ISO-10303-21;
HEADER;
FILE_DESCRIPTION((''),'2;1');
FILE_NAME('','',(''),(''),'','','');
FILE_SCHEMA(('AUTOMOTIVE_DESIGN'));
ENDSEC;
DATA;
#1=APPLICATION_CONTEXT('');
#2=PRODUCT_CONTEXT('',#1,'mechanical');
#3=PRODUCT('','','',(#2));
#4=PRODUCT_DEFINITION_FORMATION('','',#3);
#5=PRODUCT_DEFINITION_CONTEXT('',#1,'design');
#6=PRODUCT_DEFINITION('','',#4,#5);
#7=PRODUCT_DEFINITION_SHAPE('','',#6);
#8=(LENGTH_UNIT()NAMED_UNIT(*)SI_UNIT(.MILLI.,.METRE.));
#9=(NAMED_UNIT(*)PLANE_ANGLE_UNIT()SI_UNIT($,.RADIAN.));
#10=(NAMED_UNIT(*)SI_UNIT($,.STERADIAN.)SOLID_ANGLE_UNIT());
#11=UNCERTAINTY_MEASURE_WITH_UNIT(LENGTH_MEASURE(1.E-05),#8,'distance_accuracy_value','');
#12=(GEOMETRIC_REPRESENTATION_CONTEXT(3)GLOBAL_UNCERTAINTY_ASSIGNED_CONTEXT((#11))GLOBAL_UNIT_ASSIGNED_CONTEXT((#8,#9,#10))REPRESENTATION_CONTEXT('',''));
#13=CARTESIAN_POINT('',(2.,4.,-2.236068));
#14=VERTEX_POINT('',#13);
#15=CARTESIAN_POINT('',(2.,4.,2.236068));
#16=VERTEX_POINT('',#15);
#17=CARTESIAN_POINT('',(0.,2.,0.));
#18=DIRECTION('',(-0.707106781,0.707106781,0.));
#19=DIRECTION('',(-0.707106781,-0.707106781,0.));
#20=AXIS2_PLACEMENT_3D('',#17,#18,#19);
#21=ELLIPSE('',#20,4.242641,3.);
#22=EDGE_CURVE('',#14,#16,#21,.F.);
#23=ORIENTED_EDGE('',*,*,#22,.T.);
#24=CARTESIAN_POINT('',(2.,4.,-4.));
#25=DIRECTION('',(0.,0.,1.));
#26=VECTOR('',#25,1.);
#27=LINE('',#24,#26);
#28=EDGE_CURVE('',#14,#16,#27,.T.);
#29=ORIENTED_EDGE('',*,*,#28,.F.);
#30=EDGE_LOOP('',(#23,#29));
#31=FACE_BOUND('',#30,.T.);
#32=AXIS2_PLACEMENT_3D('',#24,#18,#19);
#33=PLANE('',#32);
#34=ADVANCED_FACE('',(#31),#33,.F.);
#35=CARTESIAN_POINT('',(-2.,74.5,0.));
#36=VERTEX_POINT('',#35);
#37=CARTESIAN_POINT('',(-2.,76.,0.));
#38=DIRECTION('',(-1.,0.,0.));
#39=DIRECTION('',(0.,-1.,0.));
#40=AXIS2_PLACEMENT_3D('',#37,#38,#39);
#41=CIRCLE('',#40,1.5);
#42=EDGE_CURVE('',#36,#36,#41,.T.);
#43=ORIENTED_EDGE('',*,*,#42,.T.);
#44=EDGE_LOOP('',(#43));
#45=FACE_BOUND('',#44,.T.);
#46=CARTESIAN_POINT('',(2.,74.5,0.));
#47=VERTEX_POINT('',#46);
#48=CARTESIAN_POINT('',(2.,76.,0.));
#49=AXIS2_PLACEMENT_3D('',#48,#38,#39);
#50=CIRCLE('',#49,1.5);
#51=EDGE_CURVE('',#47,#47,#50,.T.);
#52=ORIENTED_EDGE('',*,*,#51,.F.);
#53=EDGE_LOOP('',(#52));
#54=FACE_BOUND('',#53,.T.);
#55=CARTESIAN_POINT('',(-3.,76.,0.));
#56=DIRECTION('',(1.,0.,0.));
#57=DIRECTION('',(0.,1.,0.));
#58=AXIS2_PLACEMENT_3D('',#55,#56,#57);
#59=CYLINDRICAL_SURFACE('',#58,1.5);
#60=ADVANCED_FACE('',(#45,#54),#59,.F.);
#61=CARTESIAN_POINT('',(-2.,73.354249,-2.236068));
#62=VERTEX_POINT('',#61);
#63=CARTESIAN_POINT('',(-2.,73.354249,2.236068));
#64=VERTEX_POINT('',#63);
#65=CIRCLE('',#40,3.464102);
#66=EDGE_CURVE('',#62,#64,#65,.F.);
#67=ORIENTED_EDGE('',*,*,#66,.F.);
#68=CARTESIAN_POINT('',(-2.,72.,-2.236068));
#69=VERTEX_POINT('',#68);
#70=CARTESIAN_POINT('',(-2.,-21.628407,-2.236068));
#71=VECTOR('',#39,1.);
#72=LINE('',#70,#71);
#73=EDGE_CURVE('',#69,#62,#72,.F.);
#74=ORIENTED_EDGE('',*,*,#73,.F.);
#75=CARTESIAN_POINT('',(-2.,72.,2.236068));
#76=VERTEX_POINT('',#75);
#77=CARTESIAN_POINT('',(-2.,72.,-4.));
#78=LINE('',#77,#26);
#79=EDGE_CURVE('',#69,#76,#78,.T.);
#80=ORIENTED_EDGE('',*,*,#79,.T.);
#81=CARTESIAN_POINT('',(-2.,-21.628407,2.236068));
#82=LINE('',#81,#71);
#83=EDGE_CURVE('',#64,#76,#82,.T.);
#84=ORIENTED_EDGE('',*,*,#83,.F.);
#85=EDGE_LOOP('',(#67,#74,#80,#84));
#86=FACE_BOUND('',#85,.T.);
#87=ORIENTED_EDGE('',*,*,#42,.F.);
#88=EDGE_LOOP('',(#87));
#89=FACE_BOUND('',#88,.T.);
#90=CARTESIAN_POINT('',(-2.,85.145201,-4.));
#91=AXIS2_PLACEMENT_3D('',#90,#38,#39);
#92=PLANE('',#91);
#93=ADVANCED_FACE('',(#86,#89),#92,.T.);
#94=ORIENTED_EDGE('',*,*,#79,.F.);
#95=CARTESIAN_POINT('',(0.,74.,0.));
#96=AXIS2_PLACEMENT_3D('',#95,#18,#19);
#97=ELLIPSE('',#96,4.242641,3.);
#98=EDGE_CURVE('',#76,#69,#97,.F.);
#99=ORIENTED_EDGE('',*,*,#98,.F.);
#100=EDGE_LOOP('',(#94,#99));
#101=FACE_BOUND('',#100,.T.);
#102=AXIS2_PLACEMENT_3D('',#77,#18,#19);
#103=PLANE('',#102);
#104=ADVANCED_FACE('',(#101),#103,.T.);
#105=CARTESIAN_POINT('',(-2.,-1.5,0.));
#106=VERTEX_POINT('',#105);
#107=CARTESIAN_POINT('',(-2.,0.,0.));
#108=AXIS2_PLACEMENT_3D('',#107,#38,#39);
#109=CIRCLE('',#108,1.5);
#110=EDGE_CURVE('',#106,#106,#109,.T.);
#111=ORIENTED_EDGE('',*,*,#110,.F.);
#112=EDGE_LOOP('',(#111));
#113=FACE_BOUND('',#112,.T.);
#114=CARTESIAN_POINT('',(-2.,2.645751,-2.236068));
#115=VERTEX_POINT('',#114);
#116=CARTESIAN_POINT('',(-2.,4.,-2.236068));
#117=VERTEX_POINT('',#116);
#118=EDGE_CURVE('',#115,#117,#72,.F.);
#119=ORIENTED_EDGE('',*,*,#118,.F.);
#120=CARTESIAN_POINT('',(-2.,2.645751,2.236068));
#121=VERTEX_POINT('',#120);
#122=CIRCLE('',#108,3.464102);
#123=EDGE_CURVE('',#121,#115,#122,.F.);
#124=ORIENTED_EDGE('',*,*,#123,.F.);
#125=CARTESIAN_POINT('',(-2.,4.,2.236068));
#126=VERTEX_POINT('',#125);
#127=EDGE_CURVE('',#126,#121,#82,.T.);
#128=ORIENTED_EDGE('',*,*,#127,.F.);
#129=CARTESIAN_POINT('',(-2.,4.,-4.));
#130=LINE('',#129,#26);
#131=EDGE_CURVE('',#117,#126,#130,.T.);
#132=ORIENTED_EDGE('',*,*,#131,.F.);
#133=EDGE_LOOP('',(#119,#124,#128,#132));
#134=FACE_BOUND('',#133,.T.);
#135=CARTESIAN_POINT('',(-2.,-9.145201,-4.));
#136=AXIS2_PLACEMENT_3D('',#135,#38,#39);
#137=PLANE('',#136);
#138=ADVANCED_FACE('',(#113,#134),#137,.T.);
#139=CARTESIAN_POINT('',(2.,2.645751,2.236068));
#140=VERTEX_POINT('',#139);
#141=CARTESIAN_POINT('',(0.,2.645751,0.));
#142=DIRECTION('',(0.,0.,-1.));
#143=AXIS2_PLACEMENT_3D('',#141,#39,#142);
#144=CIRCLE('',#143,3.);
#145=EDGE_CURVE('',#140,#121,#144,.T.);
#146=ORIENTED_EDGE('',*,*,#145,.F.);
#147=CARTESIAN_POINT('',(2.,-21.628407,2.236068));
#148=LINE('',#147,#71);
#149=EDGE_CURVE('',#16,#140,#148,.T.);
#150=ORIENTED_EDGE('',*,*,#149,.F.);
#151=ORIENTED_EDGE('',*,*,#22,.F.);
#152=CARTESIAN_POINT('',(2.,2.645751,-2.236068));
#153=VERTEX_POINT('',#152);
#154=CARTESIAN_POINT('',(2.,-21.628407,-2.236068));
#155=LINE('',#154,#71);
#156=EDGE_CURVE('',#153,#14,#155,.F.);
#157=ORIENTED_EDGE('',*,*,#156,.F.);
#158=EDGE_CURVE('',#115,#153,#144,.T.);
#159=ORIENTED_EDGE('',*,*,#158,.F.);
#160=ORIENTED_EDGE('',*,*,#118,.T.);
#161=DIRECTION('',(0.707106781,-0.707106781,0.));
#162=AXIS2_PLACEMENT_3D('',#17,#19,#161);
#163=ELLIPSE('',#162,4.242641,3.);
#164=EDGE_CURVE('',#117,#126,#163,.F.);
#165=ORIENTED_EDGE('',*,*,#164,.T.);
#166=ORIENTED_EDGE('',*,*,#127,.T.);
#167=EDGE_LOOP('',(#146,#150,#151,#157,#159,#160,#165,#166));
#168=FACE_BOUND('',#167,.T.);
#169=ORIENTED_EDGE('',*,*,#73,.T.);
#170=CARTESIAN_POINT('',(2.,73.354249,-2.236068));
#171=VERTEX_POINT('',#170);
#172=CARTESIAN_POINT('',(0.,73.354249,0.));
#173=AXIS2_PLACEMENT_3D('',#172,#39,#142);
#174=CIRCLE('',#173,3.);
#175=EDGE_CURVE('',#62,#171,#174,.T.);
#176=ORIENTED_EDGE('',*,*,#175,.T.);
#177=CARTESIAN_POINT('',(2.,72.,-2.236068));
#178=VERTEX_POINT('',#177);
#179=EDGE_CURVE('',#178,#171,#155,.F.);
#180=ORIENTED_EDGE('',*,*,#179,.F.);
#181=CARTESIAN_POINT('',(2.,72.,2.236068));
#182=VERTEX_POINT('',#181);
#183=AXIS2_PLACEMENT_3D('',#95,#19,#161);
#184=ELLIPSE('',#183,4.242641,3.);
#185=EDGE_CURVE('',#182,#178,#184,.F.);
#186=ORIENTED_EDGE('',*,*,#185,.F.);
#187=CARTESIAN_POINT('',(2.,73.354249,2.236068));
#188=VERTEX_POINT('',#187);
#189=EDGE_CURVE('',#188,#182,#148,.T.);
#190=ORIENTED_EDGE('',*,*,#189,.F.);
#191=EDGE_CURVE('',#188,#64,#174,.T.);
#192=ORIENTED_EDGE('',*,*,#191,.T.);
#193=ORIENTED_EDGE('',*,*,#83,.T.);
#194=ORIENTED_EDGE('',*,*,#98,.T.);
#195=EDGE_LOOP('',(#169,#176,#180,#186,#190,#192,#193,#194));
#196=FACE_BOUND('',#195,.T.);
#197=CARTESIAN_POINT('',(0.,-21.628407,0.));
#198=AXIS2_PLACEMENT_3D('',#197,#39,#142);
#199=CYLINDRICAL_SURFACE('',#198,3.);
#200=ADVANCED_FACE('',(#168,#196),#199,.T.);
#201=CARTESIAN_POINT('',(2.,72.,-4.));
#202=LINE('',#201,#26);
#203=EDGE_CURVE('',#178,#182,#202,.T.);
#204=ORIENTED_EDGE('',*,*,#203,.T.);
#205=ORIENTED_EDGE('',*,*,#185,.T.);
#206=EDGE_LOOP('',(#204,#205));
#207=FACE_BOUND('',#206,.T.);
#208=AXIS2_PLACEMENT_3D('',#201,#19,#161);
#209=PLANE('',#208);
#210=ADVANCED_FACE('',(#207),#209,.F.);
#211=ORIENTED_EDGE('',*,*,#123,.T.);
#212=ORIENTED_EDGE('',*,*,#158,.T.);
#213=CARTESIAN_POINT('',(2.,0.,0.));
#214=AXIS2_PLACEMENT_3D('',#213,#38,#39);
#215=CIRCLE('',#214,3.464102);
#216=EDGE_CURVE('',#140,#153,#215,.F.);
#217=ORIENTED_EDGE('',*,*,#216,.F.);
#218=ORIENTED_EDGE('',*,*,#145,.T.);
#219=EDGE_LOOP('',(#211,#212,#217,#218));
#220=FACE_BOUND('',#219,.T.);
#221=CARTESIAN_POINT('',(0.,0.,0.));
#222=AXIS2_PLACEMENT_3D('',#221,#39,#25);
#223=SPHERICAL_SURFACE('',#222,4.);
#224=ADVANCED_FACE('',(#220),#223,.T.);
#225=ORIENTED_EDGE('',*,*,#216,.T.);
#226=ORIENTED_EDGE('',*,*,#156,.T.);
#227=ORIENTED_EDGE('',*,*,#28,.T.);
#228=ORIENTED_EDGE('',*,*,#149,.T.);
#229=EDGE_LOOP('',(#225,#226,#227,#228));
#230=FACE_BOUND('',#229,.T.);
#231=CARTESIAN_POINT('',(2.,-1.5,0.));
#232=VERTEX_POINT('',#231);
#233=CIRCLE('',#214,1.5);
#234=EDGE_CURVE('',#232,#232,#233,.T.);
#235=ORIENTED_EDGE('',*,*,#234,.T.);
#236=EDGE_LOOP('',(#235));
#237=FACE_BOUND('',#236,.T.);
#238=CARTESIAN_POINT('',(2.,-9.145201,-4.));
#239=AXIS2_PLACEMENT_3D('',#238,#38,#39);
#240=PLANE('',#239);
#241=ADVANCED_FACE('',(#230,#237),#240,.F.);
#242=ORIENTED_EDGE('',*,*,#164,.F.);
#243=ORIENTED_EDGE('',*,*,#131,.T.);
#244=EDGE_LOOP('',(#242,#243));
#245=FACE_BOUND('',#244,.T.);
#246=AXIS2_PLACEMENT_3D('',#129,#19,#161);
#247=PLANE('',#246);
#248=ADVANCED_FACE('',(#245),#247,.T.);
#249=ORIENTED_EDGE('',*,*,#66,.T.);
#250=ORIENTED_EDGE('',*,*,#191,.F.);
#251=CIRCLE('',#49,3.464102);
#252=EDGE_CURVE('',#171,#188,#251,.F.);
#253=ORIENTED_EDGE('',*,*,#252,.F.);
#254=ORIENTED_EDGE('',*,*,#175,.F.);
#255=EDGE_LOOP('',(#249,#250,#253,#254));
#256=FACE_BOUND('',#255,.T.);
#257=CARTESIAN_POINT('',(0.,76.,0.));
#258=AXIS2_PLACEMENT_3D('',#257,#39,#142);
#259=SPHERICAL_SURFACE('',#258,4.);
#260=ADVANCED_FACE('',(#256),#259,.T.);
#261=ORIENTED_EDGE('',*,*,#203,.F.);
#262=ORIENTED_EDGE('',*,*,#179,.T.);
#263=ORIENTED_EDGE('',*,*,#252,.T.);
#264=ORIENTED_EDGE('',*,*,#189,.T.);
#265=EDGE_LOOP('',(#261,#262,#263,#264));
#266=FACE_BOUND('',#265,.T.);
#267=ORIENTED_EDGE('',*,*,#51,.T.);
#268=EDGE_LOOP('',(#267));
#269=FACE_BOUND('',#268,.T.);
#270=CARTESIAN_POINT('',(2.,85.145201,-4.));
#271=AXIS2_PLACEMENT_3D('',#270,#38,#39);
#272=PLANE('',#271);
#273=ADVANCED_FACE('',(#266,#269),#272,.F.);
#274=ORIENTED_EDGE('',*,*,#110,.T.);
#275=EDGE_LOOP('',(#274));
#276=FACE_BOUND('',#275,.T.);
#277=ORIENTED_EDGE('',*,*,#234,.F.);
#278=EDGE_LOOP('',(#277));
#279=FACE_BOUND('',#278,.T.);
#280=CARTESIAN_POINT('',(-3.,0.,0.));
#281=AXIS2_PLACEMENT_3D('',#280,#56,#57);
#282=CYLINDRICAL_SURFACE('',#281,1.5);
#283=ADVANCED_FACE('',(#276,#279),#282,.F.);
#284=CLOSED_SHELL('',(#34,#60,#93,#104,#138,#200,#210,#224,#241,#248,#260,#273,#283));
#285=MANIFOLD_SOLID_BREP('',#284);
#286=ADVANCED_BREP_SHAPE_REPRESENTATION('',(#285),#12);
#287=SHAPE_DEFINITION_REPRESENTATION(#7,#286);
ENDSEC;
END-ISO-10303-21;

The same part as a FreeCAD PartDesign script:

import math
import FreeCAD as App
import Part
import Sketcher

V = App.Vector

doc = App.newDocument("Part")
body = doc.addObject("PartDesign::Body", "Body")

# Sketch on YZ plane
sketch1 = body.newObject("Sketcher::SketchObject", "Sketch")
sketch1.AttachmentSupport = (doc.getObject("YZ_Plane"), [""])
sketch1.MapMode = "FlatFace"
sketch1.addGeometry([
    Part.LineSegment(V(80, 0, 0), V(-4, 0, 0)),
    Part.ArcOfCircle(Part.Circle(V(0, 0, 0), V(0, 0, 1), 4), math.radians(180), math.radians(311)),
    Part.LineSegment(V(2.6, -3, 0), V(73.4, -3, 0)),
    Part.ArcOfCircle(Part.Circle(V(76, 0, 0), V(0, 0, 1), 4), math.radians(-131), math.radians(0)),
], False)
sketch1.addConstraint([
    Sketcher.Constraint("Coincident", 0, 2, 1, 1),
    Sketcher.Constraint("Coincident", 1, 2, 2, 1),
    Sketcher.Constraint("Coincident", 2, 2, 3, 1),
    Sketcher.Constraint("Coincident", 3, 2, 0, 1),
    Sketcher.Constraint("Horizontal", 0),
    Sketcher.Constraint("Horizontal", 2),
    Sketcher.Constraint("Coincident", 1, 3, -1, 1),
    Sketcher.Constraint("Equal", 1, 3),
    Sketcher.Constraint("PointOnObject", 3, 3, -1),
    Sketcher.Constraint("PointOnObject", 0, 2, -1),
    Sketcher.Constraint("Radius", 1, 4.0),
    Sketcher.Constraint("DistanceX", 0, 2, 0, 1, 84.0),
    Sketcher.Constraint("DistanceY", 1, 2, -1, 1, 3.0),
])
revolution = body.newObject("PartDesign::Revolution", "Revolution")
revolution.Profile = sketch1
revolution.ReferenceAxis = (sketch1, ["H_Axis"])
revolution.Angle = 360

# Sketch on XY plane
sketch2 = body.newObject("Sketcher::SketchObject", "Sketch001")
sketch2.AttachmentSupport = (doc.getObject("XY_Plane"), [""])
sketch2.MapMode = "FlatFace"
sketch2.addGeometry([
    Part.LineSegment(V(2, 85.1, 0), V(2, 72, 0)),  # 0
    Part.LineSegment(V(2, 72, 0), V(3, 71, 0)),  # 1
    Part.LineSegment(V(3, 71, 0), V(8.1, 71, 0)),  # 2
    Part.LineSegment(V(8.1, 71, 0), V(8.1, 85.1, 0)),  # 3
    Part.LineSegment(V(8.1, 85.1, 0), V(2, 85.1, 0)),  # 4
    Part.LineSegment(V(2, -9.1, 0), V(8.1, -9.1, 0)),  # 5
    Part.LineSegment(V(8.1, -9.1, 0), V(8.1, 5, 0)),  # 6
    Part.LineSegment(V(8.1, 5, 0), V(3, 5, 0)),  # 7
    Part.LineSegment(V(3, 5, 0), V(2, 4, 0)),  # 8
    Part.LineSegment(V(2, 4, 0), V(2, -9.1, 0)),  # 9
], False)
sketch2.addConstraint([
    Sketcher.Constraint("Coincident", 0, 2, 1, 1),
    Sketcher.Constraint("Coincident", 1, 2, 2, 1),
    Sketcher.Constraint("Coincident", 2, 2, 3, 1),
    Sketcher.Constraint("Coincident", 3, 2, 4, 1),
    Sketcher.Constraint("Coincident", 4, 2, 0, 1),
    Sketcher.Constraint("Coincident", 5, 2, 6, 1),
    Sketcher.Constraint("Coincident", 6, 2, 7, 1),
    Sketcher.Constraint("Coincident", 7, 2, 8, 1),
    Sketcher.Constraint("Coincident", 8, 2, 9, 1),
    Sketcher.Constraint("Coincident", 9, 2, 5, 1),
    Sketcher.Constraint("Vertical", 0),
    Sketcher.Constraint("Horizontal", 2),
    Sketcher.Constraint("Vertical", 3),
    Sketcher.Constraint("Horizontal", 4),
    Sketcher.Constraint("Horizontal", 5),
    Sketcher.Constraint("Vertical", 6),
    Sketcher.Constraint("Horizontal", 7),
    Sketcher.Constraint("Vertical", 9),
    Sketcher.Constraint("Perpendicular", 1, 8),
    Sketcher.Constraint("Vertical", 3, 2, 5, 2),
    Sketcher.Constraint("Vertical", 1, 2, 7, 2),
    Sketcher.Constraint("Vertical", 4, 2, 8, 2),
    Sketcher.Constraint("Equal", 3, 6),
    Sketcher.Constraint("Equal", 0, 9),
    Sketcher.Constraint("DistanceX", -1, 1, 0, 2, 2.0),
    Sketcher.Constraint("DistanceY", -1, 1, 0, 2, 72.0),
    Sketcher.Constraint("DistanceX", -1, 1, 1, 2, 3.0),
    Sketcher.Constraint("DistanceY", -1, 1, 6, 2, 5.0),
    Sketcher.Constraint("DistanceY", 0, 2, 0, 1, 13.145201),
    Sketcher.Constraint("DistanceX", 2, 1, 2, 2, 5.111542),
])
pocket1 = body.newObject("PartDesign::Pocket", "Pocket")
pocket1.Profile = sketch2
pocket1.Length = 162.399501
pocket1.Midplane = True
doc.recompute()

mirrored = body.newObject("PartDesign::Mirrored", "Mirrored")
mirrored.Originals = [pocket1]
mirrored.MirrorPlane = (doc.getObject("YZ_Plane"), [""])
body.Tip = mirrored

# Sketch on YZ plane
sketch3 = body.newObject("Sketcher::SketchObject", "Sketch002")
sketch3.AttachmentSupport = (doc.getObject("YZ_Plane"), [""])
sketch3.MapMode = "FlatFace"
sketch3.AttachmentOffset = App.Placement(V(0, 0, 2), App.Rotation())
sketch3.addGeometry(Part.Circle(V(76, 0, 0), V(0, 0, 1), 1.5), False)
sketch3.addConstraint([
    Sketcher.Constraint("PointOnObject", 0, 3, -1),
    Sketcher.Constraint("Diameter", 0, 3.0),
    Sketcher.Constraint("DistanceX", -1, 1, 0, 3, 76.0),
])
pocket2 = body.newObject("PartDesign::Pocket", "Pocket001")
pocket2.Profile = sketch3
pocket2.Type = "ThroughAll"
pocket2.Midplane = True

# Sketch on YZ plane
sketch4 = body.newObject("Sketcher::SketchObject", "Sketch003")
sketch4.AttachmentSupport = (doc.getObject("YZ_Plane"), [""])
sketch4.MapMode = "FlatFace"
sketch4.AttachmentOffset = App.Placement(V(0, 0, 2), App.Rotation())
sketch4.addGeometry(Part.Circle(V(0, 0, 0), V(0, 0, 1), 1.5), False)
sketch4.addConstraint([
    Sketcher.Constraint("Coincident", 0, 3, -1, 1),
    Sketcher.Constraint("Diameter", 0, 3.0),
])
pocket3 = body.newObject("PartDesign::Pocket", "Pocket002")
pocket3.Profile = sketch4
pocket3.Type = "ThroughAll"
pocket3.Midplane = True

doc.recompute()
